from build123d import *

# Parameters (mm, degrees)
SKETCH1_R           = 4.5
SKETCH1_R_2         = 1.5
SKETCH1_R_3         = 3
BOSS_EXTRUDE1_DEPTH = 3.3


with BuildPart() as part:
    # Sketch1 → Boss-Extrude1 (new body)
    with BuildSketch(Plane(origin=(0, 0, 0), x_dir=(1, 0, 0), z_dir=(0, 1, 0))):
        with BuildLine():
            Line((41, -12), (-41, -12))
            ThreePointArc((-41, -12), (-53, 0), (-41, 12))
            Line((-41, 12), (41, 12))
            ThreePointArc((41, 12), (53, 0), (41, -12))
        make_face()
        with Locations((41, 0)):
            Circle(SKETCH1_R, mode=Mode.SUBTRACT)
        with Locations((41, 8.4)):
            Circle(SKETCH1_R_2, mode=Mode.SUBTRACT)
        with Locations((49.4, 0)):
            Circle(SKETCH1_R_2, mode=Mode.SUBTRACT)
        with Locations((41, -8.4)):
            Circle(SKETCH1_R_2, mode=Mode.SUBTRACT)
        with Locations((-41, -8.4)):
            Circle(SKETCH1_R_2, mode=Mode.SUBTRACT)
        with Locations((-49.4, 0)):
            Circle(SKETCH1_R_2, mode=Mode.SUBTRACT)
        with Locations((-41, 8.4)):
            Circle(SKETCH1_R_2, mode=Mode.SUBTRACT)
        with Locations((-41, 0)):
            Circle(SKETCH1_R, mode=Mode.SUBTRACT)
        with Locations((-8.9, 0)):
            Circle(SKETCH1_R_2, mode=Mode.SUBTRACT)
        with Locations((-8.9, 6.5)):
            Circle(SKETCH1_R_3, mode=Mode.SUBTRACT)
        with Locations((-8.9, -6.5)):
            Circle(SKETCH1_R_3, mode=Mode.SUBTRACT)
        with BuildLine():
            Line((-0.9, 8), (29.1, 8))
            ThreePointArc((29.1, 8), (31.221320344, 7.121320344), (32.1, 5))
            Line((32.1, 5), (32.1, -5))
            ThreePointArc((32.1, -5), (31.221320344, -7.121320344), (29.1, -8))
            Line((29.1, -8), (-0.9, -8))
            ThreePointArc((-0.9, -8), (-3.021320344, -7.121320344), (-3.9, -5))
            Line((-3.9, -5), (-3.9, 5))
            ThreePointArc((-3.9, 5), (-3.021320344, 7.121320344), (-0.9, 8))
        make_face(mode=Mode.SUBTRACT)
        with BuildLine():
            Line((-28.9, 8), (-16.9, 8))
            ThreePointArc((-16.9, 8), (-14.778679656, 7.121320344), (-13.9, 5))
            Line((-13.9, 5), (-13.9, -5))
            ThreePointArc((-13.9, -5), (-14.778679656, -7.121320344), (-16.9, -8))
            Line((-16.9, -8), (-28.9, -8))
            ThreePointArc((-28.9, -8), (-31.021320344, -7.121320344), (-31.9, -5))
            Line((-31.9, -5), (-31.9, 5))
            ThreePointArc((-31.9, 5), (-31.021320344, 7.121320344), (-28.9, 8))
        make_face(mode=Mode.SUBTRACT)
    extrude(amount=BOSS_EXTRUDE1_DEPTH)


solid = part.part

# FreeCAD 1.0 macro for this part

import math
import FreeCAD as App
import Part
import Sketcher
Q = App.Units.Quantity

doc = App.newDocument("Part")
body = doc.addObject("PartDesign::Body", "Body")

sketch1 = body.newObject("Sketcher::SketchObject", "Sketch")
sketch1.AttachmentSupport = (doc.getObject("XZ_Plane"), [""])
sketch1.MapMode = "FlatFace"
sketch1.addGeometry(Part.LineSegment(App.Vector(-41, 12, 0), App.Vector(41, 12, 0)), False)
sketch1.addGeometry(Part.ArcOfCircle(Part.Circle(App.Vector(41, 0, 0), App.Vector(0, 0, 1), 12), math.radians(-90), math.radians(90)), False)
sketch1.addGeometry(Part.LineSegment(App.Vector(41, -12, 0), App.Vector(-41, -12, 0)), False)
sketch1.addGeometry(Part.ArcOfCircle(Part.Circle(App.Vector(-41, 0, 0), App.Vector(0, 0, 1), 12), math.radians(90), math.radians(270)), False)
sketch1.addGeometry(Part.Circle(App.Vector(41, 8.4, 0), App.Vector(0, 0, 1), 1.5), False)
sketch1.addGeometry(Part.Circle(App.Vector(-8.9, 6.5, 0), App.Vector(0, 0, 1), 3), False)
sketch1.addGeometry(Part.Circle(App.Vector(-41, 8.4, 0), App.Vector(0, 0, 1), 1.5), False)
sketch1.addGeometry(Part.Circle(App.Vector(49.4, 0, 0), App.Vector(0, 0, 1), 1.5), False)
sketch1.addGeometry(Part.Circle(App.Vector(41, 0, 0), App.Vector(0, 0, 1), 4.5), False)
sketch1.addGeometry(Part.LineSegment(App.Vector(-0.9, -8, 0), App.Vector(29.1, -8, 0)), False)
sketch1.addGeometry(Part.ArcOfCircle(Part.Circle(App.Vector(29.1, -5, 0), App.Vector(0, 0, 1), 3), math.radians(-90), math.radians(0)), False)
sketch1.addGeometry(Part.LineSegment(App.Vector(32.1, -5, 0), App.Vector(32.1, 5, 0)), False)
sketch1.addGeometry(Part.ArcOfCircle(Part.Circle(App.Vector(29.1, 5, 0), App.Vector(0, 0, 1), 3), math.radians(0), math.radians(90)), False)
sketch1.addGeometry(Part.LineSegment(App.Vector(29.1, 8, 0), App.Vector(-0.9, 8, 0)), False)
sketch1.addGeometry(Part.ArcOfCircle(Part.Circle(App.Vector(-0.9, 5, 0), App.Vector(0, 0, 1), 3), math.radians(90), math.radians(180)), False)
sketch1.addGeometry(Part.LineSegment(App.Vector(-3.9, 5, 0), App.Vector(-3.9, -5, 0)), False)
sketch1.addGeometry(Part.ArcOfCircle(Part.Circle(App.Vector(-0.9, -5, 0), App.Vector(0, 0, 1), 3), math.radians(180), math.radians(270)), False)
sketch1.addGeometry(Part.Circle(App.Vector(41, -8.4, 0), App.Vector(0, 0, 1), 1.5), False)
sketch1.addGeometry(Part.Circle(App.Vector(-8.9, 0, 0), App.Vector(0, 0, 1), 1.5), False)
sketch1.addGeometry(Part.LineSegment(App.Vector(-28.9, -8, 0), App.Vector(-16.9, -8, 0)), False)
sketch1.addGeometry(Part.ArcOfCircle(Part.Circle(App.Vector(-16.9, -5, 0), App.Vector(0, 0, 1), 3), math.radians(-90), math.radians(0)), False)
sketch1.addGeometry(Part.LineSegment(App.Vector(-13.9, -5, 0), App.Vector(-13.9, 5, 0)), False)
sketch1.addGeometry(Part.ArcOfCircle(Part.Circle(App.Vector(-16.9, 5, 0), App.Vector(0, 0, 1), 3), math.radians(0), math.radians(90)), False)
sketch1.addGeometry(Part.LineSegment(App.Vector(-16.9, 8, 0), App.Vector(-28.9, 8, 0)), False)
sketch1.addGeometry(Part.ArcOfCircle(Part.Circle(App.Vector(-28.9, 5, 0), App.Vector(0, 0, 1), 3), math.radians(90), math.radians(180)), False)
sketch1.addGeometry(Part.LineSegment(App.Vector(-31.9, 5, 0), App.Vector(-31.9, -5, 0)), False)
sketch1.addGeometry(Part.ArcOfCircle(Part.Circle(App.Vector(-28.9, -5, 0), App.Vector(0, 0, 1), 3), math.radians(180), math.radians(270)), False)
sketch1.addGeometry(Part.Circle(App.Vector(-41, 0, 0), App.Vector(0, 0, 1), 4.5), False)
sketch1.addGeometry(Part.Circle(App.Vector(-49.4, 0, 0), App.Vector(0, 0, 1), 1.5), False)
sketch1.addGeometry(Part.Circle(App.Vector(-8.9, -6.5, 0), App.Vector(0, 0, 1), 3), False)
sketch1.addGeometry(Part.Circle(App.Vector(-41, -8.4, 0), App.Vector(0, 0, 1), 1.5), False)
sketch1.addConstraint(Sketcher.Constraint("Tangent", 0, 2, 1, 2))
sketch1.addConstraint(Sketcher.Constraint("Tangent", 1, 1, 2, 1))
sketch1.addConstraint(Sketcher.Constraint("Tangent", 2, 2, 3, 2))
sketch1.addConstraint(Sketcher.Constraint("Tangent", 3, 1, 0, 1))
sketch1.addConstraint(Sketcher.Constraint("Tangent", 9, 2, 10, 1))
sketch1.addConstraint(Sketcher.Constraint("Tangent", 10, 2, 11, 1))
sketch1.addConstraint(Sketcher.Constraint("Tangent", 11, 2, 12, 1))
sketch1.addConstraint(Sketcher.Constraint("Tangent", 12, 2, 13, 1))
sketch1.addConstraint(Sketcher.Constraint("Tangent", 13, 2, 14, 1))
sketch1.addConstraint(Sketcher.Constraint("Tangent", 14, 2, 15, 1))
sketch1.addConstraint(Sketcher.Constraint("Tangent", 15, 2, 16, 1))
sketch1.addConstraint(Sketcher.Constraint("Tangent", 16, 2, 9, 1))
sketch1.addConstraint(Sketcher.Constraint("Tangent", 19, 2, 20, 1))
sketch1.addConstraint(Sketcher.Constraint("Tangent", 20, 2, 21, 1))
sketch1.addConstraint(Sketcher.Constraint("Tangent", 21, 2, 22, 1))
sketch1.addConstraint(Sketcher.Constraint("Tangent", 22, 2, 23, 1))
sketch1.addConstraint(Sketcher.Constraint("Tangent", 23, 2, 24, 1))
sketch1.addConstraint(Sketcher.Constraint("Tangent", 24, 2, 25, 1))
sketch1.addConstraint(Sketcher.Constraint("Tangent", 25, 2, 26, 1))
sketch1.addConstraint(Sketcher.Constraint("Tangent", 26, 2, 19, 1))
sketch1.addConstraint(Sketcher.Constraint("Horizontal", 0))
sketch1.addConstraint(Sketcher.Constraint("Horizontal", 2))
sketch1.addConstraint(Sketcher.Constraint("Horizontal", 9))
sketch1.addConstraint(Sketcher.Constraint("Vertical", 11))
sketch1.addConstraint(Sketcher.Constraint("Horizontal", 13))
sketch1.addConstraint(Sketcher.Constraint("Vertical", 15))
sketch1.addConstraint(Sketcher.Constraint("Horizontal", 19))
sketch1.addConstraint(Sketcher.Constraint("Vertical", 21))
sketch1.addConstraint(Sketcher.Constraint("Horizontal", 23))
sketch1.addConstraint(Sketcher.Constraint("Vertical", 25))
sketch1.addConstraint(Sketcher.Constraint("Coincident", 8, 3, 1, 3))
sketch1.addConstraint(Sketcher.Constraint("Coincident", 27, 3, 3, 3))
sketch1.addConstraint(Sketcher.Constraint("Equal", 4, 6))
sketch1.addConstraint(Sketcher.Constraint("Equal", 6, 7))
sketch1.addConstraint(Sketcher.Constraint("Equal", 5, 10))
sketch1.addConstraint(Sketcher.Constraint("Equal", 10, 12))
sketch1.addConstraint(Sketcher.Constraint("Equal", 12, 14))
sketch1.addConstraint(Sketcher.Constraint("Equal", 14, 16))
sketch1.addConstraint(Sketcher.Constraint("Equal", 7, 17))
sketch1.addConstraint(Sketcher.Constraint("Equal", 17, 18))
sketch1.addConstraint(Sketcher.Constraint("Equal", 16, 20))
sketch1.addConstraint(Sketcher.Constraint("Equal", 20, 22))
sketch1.addConstraint(Sketcher.Constraint("Equal", 22, 24))
sketch1.addConstraint(Sketcher.Constraint("Equal", 24, 26))
sketch1.addConstraint(Sketcher.Constraint("Equal", 8, 27))
sketch1.addConstraint(Sketcher.Constraint("Equal", 18, 28))
sketch1.addConstraint(Sketcher.Constraint("Equal", 26, 29))
sketch1.addConstraint(Sketcher.Constraint("Equal", 28, 30))
sketch1.addConstraint(Sketcher.Constraint("Symmetric", 1, 3, 3, 3, -1, 1))
sketch1.addConstraint(Sketcher.Constraint("Symmetric", 6, 3, 17, 3, -1, 1))
sketch1.addConstraint(Sketcher.Constraint("Symmetric", 7, 3, 28, 3, -1, 1))
sketch1.addConstraint(Sketcher.Constraint("Symmetric", 4, 3, 30, 3, -1, 1))
sketch1.addConstraint(Sketcher.Constraint("Symmetric", 4, 3, 6, 3, -2))
sketch1.addConstraint(Sketcher.Constraint("Symmetric", 5, 3, 29, 3, -1))
sketch1.addConstraint(Sketcher.Constraint("PointOnObject", 7, 3, -1))
sketch1.addConstraint(Sketcher.Constraint("PointOnObject", 18, 3, -1))
sketch1.addConstraint(Sketcher.Constraint("Horizontal", 16, 3, 20, 3))
sketch1.addConstraint(Sketcher.Constraint("Horizontal", 14, 3, 22, 3))
sketch1.addConstraint(Sketcher.Constraint("Vertical", 1, 3, 4, 3))
sketch1.addConstraint(Sketcher.Constraint("Vertical", 5, 3, 18, 3))
sketch1.addConstraint(Sketcher.Constraint("Diameter", 4, Q("3 mm")))
sketch1.addConstraint(Sketcher.Constraint("Diameter", 5, Q("6 mm")))
sketch1.addConstraint(Sketcher.Constraint("Diameter", 8, Q("9 mm")))
sketch1.addConstraint(Sketcher.Constraint("Radius", 1, Q("12 mm")))
sketch1.addConstraint(Sketcher.Constraint("DistanceX", 0, 1, 0, 2, Q("82 mm")))
sketch1.addConstraint(Sketcher.Constraint("DistanceX", 9, 1, 9, 2, Q("30 mm")))
sketch1.addConstraint(Sketcher.Constraint("DistanceX", 19, 1, 19, 2, Q("12 mm")))
sketch1.addConstraint(Sketcher.Constraint("DistanceY", 11, 1, 11, 2, Q("10 mm")))
sketch1.addConstraint(Sketcher.Constraint("DistanceY", 10, 3, -1, 1, Q("5 mm")))
sketch1.addConstraint(Sketcher.Constraint("DistanceX", 5, 3, 10, 3, Q("38 mm")))
sketch1.addConstraint(Sketcher.Constraint("DistanceX", 20, 3, 18, 3, Q("8 mm")))
sketch1.addConstraint(Sketcher.Constraint("DistanceY", 29, 3, 5, 3, Q("13 mm")))
sketch1.addConstraint(Sketcher.Constraint("DistanceY", -1, 1, 4, 3, Q("8.4 mm")))
sketch1.addConstraint(Sketcher.Constraint("DistanceX", 5, 3, -1, 1, Q("8.9 mm")))
sketch1.addConstraint(Sketcher.Constraint("DistanceX", -1, 1, 7, 3, Q("49.4 mm")))
pad1 = body.newObject("PartDesign::Pad", "Pad")
pad1.Profile = sketch1
pad1.Length = 3.3
pad1.Reversed = True

doc.recompute()
